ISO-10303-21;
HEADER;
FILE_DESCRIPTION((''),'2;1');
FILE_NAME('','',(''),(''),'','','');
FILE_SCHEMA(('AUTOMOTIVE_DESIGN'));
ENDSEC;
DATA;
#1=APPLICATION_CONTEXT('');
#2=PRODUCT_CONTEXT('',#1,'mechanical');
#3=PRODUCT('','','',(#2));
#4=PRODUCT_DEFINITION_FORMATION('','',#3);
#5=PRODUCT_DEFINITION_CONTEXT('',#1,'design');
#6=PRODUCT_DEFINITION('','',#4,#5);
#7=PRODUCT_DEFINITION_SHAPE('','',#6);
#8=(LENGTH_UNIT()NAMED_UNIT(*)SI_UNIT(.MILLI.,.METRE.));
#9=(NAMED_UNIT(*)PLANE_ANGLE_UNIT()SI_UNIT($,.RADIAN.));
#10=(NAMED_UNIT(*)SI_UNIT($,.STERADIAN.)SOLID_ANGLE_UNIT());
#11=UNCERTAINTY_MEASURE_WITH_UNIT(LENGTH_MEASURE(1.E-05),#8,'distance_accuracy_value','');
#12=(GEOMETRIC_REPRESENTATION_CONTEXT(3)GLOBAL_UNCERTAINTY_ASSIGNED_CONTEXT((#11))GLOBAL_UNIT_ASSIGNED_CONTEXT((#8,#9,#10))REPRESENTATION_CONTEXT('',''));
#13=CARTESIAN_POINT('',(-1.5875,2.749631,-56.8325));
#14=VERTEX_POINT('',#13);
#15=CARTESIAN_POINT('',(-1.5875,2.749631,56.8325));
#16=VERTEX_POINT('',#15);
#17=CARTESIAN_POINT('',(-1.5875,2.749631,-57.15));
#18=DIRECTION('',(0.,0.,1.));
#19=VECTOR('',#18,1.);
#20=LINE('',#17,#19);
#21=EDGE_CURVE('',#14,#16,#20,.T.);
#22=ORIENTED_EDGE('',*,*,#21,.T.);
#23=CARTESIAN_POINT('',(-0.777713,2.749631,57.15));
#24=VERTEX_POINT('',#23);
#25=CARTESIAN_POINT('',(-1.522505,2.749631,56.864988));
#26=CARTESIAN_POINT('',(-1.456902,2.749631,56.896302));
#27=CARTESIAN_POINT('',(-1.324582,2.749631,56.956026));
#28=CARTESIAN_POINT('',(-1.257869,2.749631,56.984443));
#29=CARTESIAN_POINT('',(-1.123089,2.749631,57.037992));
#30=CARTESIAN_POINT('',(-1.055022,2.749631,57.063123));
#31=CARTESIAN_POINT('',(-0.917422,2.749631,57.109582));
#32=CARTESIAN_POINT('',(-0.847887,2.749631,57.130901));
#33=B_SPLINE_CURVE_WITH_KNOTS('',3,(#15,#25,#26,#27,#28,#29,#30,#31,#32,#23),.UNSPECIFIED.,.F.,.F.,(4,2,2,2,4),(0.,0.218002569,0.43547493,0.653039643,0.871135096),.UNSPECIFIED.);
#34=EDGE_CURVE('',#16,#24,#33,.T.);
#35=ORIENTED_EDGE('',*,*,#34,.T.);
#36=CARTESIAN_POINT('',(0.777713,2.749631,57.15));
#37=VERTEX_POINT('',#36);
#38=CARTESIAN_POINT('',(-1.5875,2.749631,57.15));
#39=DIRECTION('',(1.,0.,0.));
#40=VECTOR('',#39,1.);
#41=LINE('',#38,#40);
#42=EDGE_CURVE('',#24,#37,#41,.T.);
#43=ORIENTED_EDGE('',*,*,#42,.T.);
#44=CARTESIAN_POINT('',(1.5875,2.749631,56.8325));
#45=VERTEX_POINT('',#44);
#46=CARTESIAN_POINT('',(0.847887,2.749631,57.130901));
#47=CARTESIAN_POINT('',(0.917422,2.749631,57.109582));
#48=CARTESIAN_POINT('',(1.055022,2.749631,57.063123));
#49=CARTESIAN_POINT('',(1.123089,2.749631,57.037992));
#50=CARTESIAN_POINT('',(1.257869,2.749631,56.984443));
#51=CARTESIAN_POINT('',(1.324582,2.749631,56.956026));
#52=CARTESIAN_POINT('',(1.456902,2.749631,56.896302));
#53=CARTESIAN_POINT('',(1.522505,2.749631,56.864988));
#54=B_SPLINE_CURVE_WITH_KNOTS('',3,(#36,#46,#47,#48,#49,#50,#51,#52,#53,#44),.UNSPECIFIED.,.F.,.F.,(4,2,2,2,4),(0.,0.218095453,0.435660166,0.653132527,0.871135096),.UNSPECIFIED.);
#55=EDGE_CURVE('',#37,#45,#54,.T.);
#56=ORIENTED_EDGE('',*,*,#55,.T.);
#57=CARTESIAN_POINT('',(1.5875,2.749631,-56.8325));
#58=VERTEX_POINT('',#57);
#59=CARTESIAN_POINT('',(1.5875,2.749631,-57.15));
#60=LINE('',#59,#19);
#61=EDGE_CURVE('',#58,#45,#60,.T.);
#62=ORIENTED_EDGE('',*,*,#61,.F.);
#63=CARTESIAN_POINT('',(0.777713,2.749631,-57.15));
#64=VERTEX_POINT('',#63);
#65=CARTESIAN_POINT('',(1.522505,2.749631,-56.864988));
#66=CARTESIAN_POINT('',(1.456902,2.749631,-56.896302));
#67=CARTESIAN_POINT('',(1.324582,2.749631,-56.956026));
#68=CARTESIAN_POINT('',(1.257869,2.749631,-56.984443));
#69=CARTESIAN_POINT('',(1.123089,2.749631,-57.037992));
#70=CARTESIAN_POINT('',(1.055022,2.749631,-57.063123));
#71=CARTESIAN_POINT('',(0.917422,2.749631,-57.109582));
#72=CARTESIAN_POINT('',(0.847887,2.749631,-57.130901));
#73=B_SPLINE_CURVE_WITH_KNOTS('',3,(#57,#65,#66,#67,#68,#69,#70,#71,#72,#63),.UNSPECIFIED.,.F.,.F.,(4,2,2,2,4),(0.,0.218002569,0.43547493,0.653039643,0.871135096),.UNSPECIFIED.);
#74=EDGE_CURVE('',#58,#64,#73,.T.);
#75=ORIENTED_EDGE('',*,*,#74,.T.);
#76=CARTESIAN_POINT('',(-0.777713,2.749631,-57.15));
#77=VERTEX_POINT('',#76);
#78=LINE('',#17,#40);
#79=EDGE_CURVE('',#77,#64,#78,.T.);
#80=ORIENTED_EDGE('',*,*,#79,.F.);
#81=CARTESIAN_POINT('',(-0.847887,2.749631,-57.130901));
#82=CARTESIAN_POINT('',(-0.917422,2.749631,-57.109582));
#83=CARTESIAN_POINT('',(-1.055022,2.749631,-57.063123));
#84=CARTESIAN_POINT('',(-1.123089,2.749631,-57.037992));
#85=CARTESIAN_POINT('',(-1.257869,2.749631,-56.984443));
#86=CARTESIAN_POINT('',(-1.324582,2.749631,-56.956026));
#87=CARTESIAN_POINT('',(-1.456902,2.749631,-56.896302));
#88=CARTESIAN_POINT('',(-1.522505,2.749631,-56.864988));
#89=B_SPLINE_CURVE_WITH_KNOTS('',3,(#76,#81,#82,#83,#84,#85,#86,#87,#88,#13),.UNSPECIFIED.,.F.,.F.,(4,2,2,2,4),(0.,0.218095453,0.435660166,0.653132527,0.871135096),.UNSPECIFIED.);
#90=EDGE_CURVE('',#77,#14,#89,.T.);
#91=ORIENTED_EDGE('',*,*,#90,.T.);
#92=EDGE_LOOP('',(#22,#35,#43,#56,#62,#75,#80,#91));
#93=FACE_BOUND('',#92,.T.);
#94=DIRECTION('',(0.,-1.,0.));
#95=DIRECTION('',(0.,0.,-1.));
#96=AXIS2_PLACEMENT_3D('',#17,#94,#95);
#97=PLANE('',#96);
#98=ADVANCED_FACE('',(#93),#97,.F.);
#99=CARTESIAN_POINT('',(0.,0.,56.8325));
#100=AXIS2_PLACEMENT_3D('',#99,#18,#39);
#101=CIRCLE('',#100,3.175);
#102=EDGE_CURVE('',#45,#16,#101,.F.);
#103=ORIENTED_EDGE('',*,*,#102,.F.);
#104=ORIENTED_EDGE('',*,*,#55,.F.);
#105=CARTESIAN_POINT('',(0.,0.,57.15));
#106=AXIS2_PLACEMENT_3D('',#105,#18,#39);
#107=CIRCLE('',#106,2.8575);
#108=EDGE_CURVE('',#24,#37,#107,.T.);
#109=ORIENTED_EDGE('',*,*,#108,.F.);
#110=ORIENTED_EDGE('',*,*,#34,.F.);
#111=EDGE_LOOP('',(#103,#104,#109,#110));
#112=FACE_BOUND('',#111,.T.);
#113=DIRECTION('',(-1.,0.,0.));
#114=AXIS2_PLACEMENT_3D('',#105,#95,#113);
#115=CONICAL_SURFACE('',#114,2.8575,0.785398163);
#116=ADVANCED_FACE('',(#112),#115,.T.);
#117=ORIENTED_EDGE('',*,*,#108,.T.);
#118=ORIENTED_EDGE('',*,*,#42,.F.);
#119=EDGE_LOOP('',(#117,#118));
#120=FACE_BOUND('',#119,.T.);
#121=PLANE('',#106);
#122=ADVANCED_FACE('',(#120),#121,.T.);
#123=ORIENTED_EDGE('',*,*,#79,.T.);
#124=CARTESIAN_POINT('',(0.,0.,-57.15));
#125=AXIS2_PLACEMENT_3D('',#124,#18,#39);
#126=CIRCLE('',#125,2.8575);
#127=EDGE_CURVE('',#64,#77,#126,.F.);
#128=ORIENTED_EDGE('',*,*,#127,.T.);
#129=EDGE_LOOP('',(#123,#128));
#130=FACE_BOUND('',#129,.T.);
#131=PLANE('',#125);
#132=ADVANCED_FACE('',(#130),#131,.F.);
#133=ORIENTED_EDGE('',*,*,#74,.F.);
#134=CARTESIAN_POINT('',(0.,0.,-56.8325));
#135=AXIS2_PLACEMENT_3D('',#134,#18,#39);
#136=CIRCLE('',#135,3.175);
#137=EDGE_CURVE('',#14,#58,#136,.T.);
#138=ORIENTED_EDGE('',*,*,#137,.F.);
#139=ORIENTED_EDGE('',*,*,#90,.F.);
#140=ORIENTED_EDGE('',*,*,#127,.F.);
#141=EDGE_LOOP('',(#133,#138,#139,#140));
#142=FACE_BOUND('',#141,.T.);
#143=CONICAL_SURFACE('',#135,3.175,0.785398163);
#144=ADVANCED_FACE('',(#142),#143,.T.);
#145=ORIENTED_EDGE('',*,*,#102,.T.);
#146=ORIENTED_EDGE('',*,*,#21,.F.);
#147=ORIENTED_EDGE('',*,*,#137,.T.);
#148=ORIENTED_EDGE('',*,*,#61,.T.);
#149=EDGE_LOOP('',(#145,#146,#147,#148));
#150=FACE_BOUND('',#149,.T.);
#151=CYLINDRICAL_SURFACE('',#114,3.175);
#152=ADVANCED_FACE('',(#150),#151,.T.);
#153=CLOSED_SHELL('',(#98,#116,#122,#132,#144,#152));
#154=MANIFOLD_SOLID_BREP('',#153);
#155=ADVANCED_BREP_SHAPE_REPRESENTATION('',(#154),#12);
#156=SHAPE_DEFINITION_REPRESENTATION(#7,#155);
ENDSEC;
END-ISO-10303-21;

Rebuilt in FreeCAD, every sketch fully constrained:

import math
import FreeCAD as App
import Part
import Sketcher
from FreeCAD import Vector
Q = App.Units.Quantity


def edges_at(feature, points):
    """Names of the edges that pass closest to the given points."""
    edges = feature.Shape.Edges
    near = lambda p: min(range(len(edges)), key=lambda i: edges[i].distToShape(Part.Vertex(*p))[0])
    return sorted({f"Edge{near(p) + 1}" for p in points})

doc = App.newDocument("Part")
body = doc.addObject("PartDesign::Body", "Body")

sketch1 = body.newObject("Sketcher::SketchObject", "Sketch")
sketch1.AttachmentSupport = (doc.getObject("XY_Plane"), [""])
sketch1.MapMode = "FlatFace"
sketch1.addGeometry(Part.Circle(Vector(0, 0, 0), Vector(0, 0, 1), 3.2), False)
sketch1.addConstraint(Sketcher.Constraint("Coincident", 0, 3, -1, 1))
sketch1.addConstraint(Sketcher.Constraint("Diameter", 0, Q("0.25 in")))
pad1 = body.newObject("PartDesign::Pad", "Pad")
pad1.Profile = sketch1
pad1.Type = "TwoLengths"
pad1.Length = Q("2.25 in")
pad1.Length2 = Q("2.25 in")

sketch2 = body.newObject("Sketcher::SketchObject", "Sketch001")
sketch2.AttachmentSupport = (doc.getObject("XY_Plane"), [""])
sketch2.MapMode = "FlatFace"
sketch2.addGeometry(Part.LineSegment(Vector(-1.6, 2.7, 0), Vector(1.6, 2.7, 0)), False)
sketch2.addGeometry(Part.ArcOfCircle(Part.Circle(Vector(0, 0, 0), Vector(0, 0, 1), 3.2), math.radians(60), math.radians(120)), False)
sketch2.addConstraint(Sketcher.Constraint("Coincident", 0, 1, 1, 2))
sketch2.addConstraint(Sketcher.Constraint("Coincident", 1, 1, 0, 2))
sketch2.addConstraint(Sketcher.Constraint("Horizontal", 0))
sketch2.addConstraint(Sketcher.Constraint("Coincident", 1, 3, -1, 1))
sketch2.addConstraint(Sketcher.Constraint("Radius", 1, Q("0.125 in")))
sketch2.addConstraint(Sketcher.Constraint("DistanceX", 0, 1, 0, 2, Q("0.125 in")))
pocket1 = body.newObject("PartDesign::Pocket", "Pocket")
pocket1.Profile = sketch2
pocket1.Type = "ThroughAll"
pocket1.Midplane = True
doc.recompute()

chamfer = body.newObject("PartDesign::Chamfer", "Chamfer")
chamfer.Base = (pocket1, edges_at(pocket1, [(0, -3.175, -57.15), (0, -3.175, 57.15)]))
chamfer.Size = Q("0.0125 in")

doc.recompute()
